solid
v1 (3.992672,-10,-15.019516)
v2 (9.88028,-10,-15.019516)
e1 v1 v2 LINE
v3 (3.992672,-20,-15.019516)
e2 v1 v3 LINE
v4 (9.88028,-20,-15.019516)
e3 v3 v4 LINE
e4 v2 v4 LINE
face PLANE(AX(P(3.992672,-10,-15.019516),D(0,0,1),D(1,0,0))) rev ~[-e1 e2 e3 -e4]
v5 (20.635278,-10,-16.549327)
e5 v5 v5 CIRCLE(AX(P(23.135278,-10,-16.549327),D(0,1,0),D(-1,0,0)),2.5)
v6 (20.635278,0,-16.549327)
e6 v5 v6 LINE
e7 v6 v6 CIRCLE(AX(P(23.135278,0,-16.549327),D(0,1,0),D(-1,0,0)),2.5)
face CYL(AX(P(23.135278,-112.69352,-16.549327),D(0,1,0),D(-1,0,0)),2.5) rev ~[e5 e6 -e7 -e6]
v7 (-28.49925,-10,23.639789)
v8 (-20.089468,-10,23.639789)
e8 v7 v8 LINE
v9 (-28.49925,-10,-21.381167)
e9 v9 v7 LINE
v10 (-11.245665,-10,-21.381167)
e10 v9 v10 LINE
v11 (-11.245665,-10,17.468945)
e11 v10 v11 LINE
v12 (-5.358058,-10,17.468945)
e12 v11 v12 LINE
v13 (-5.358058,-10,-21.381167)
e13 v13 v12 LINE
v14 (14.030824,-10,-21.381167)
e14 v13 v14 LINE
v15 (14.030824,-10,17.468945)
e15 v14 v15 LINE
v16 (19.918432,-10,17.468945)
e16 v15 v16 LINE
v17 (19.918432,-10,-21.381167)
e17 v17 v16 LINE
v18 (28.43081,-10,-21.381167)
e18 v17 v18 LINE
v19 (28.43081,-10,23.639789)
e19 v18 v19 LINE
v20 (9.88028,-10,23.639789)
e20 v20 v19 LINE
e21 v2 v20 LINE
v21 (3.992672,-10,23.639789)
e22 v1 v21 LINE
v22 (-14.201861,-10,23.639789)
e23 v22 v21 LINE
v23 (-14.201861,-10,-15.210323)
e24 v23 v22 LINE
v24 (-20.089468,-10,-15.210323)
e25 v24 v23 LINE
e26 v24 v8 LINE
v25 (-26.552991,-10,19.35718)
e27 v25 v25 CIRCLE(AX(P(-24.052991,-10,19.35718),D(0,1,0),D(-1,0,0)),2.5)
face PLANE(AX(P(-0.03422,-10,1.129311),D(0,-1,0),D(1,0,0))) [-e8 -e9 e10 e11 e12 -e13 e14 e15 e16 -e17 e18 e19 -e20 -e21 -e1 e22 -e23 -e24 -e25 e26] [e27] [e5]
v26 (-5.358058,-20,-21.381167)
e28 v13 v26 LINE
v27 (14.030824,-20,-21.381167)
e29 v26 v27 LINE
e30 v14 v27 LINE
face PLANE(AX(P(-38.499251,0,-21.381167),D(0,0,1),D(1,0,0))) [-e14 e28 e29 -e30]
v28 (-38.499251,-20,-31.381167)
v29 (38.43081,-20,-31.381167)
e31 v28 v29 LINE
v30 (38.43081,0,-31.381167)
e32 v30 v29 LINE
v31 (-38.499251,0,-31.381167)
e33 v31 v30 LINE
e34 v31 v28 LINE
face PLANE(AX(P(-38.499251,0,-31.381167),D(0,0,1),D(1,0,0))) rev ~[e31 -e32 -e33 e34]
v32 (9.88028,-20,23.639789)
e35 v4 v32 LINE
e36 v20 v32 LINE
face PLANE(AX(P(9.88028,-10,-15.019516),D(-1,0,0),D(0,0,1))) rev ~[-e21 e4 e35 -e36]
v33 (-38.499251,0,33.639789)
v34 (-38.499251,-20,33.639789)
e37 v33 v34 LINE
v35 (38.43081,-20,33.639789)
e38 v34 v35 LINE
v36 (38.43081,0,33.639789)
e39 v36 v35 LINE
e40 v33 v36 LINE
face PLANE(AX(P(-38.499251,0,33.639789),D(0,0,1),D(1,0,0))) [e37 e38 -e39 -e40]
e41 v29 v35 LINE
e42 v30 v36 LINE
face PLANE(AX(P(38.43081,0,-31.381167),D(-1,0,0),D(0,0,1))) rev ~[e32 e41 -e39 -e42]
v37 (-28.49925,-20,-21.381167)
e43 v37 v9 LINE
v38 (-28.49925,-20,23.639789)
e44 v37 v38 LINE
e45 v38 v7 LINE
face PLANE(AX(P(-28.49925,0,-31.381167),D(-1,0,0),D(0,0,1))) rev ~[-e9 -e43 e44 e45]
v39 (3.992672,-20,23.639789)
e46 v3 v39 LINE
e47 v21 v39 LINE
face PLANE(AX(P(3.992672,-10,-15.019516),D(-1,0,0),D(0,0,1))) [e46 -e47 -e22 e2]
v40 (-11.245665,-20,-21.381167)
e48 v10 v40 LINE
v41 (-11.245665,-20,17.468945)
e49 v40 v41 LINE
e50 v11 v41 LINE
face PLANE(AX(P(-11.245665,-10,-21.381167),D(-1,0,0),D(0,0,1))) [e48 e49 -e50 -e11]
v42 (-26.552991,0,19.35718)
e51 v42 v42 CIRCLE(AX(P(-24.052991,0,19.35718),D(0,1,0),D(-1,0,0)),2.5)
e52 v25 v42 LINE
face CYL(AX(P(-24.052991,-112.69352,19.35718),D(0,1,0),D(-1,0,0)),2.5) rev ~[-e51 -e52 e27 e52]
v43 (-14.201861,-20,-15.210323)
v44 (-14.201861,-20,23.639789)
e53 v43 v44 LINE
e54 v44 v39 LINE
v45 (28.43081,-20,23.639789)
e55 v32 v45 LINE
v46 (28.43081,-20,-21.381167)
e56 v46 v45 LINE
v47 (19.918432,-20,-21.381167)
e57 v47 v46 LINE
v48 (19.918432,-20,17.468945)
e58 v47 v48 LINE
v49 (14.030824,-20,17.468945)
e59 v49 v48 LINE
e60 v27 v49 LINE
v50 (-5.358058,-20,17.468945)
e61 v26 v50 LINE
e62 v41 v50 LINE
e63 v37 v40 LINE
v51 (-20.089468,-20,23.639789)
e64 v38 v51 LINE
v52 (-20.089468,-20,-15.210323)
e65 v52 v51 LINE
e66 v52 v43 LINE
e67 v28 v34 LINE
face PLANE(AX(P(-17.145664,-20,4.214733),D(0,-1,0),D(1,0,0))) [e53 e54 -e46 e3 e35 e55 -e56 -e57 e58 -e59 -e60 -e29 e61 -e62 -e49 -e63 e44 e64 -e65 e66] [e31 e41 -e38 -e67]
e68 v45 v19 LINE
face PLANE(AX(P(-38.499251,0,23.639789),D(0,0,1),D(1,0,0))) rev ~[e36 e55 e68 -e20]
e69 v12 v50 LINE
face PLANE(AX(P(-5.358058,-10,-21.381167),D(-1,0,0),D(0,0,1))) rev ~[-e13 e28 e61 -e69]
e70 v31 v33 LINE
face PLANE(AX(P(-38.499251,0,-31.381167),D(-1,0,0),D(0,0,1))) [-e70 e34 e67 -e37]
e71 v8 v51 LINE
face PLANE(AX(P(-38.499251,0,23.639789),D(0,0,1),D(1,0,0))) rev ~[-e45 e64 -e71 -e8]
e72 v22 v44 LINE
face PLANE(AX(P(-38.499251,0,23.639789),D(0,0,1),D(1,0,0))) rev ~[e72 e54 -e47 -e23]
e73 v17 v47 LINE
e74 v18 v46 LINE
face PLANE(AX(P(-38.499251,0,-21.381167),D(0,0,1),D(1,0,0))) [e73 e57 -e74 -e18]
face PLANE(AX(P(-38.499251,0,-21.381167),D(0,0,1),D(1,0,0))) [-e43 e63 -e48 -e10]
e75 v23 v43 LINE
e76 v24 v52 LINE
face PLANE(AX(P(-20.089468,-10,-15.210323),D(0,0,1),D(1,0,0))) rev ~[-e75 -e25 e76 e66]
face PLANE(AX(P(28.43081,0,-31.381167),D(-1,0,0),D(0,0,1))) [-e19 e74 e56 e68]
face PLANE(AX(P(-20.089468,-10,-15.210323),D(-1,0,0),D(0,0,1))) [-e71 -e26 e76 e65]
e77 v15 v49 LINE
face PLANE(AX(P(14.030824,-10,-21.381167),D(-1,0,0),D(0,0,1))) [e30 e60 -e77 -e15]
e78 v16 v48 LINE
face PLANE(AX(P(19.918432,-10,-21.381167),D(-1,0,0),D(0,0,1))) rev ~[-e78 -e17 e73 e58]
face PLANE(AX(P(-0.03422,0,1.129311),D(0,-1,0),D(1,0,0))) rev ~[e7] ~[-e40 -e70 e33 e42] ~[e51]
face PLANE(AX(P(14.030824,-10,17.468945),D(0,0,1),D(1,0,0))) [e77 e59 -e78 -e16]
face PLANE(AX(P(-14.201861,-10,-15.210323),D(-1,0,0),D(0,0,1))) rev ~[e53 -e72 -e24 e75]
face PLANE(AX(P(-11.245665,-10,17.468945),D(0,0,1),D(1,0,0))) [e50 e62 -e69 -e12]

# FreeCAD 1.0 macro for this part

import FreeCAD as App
import Part
import Sketcher


def faces_at(feature, points):
    """Names of the faces that lie closest to the given points."""
    faces = feature.Shape.Faces
    near = lambda p: min(range(len(faces)), key=lambda i: faces[i].distToShape(Part.Vertex(*p))[0])
    return sorted({f"Face{near(p) + 1}" for p in points})

doc = App.newDocument("Part")
body = doc.addObject("PartDesign::Body", "Body")

# Sketch on XZ plane
sketch1 = body.newObject("Sketcher::SketchObject", "Sketch")
sketch1.AttachmentSupport = (doc.getObject("XZ_Plane"), [""])
sketch1.MapMode = "FlatFace"
sketch1.addGeometry([
    Part.LineSegment(App.Vector(-38, 34, 0), App.Vector(-38, -31, 0)),
    Part.LineSegment(App.Vector(-38, -31, 0), App.Vector(38, -31, 0)),
    Part.LineSegment(App.Vector(38, -31, 0), App.Vector(38, 34, 0)),
    Part.LineSegment(App.Vector(38, 34, 0), App.Vector(-38, 34, 0)),
], False)
sketch1.addConstraint([
    Sketcher.Constraint("Coincident", 0, 2, 1, 1),
    Sketcher.Constraint("Coincident", 1, 2, 2, 1),
    Sketcher.Constraint("Coincident", 2, 2, 3, 1),
    Sketcher.Constraint("Coincident", 3, 2, 0, 1),
    Sketcher.Constraint("Vertical", 0),
    Sketcher.Constraint("Horizontal", 1),
    Sketcher.Constraint("Vertical", 2),
    Sketcher.Constraint("Horizontal", 3),
    Sketcher.Constraint("DistanceX", 1, 1, 1, 2, 76.930061),
    Sketcher.Constraint("DistanceY", 0, 2, 0, 1, 65.020956),
    Sketcher.Constraint("DistanceX", 0, 2, -1, 1, 38.499251),
    Sketcher.Constraint("DistanceY", -1, 1, 2, 2, 33.639789),
])
pad1 = body.newObject("PartDesign::Pad", "Pad")
pad1.Profile = sketch1
pad1.Length = 20
doc.recompute()

thickness = body.newObject("PartDesign::Thickness", "Thickness")
thickness.Base = (pad1, faces_at(pad1, [(-0.034, -20, 1.129)]))
thickness.Value = 10
thickness.Reversed = True
thickness.Join = "Arc"

# Sketch on XZ plane
sketch2 = body.newObject("Sketcher::SketchObject", "Sketch001")
sketch2.AttachmentSupport = (doc.getObject("XZ_Plane"), [""])
sketch2.MapMode = "FlatFace"
sketch2.AttachmentOffset = App.Placement(App.Vector(0, 0, 10), App.Rotation())
sketch2.addGeometry([
    Part.Circle(App.Vector(-24.1, 19.4, 0), App.Vector(0, 0, 1), 2.5),
    Part.Circle(App.Vector(23.1, -16.5, 0), App.Vector(0, 0, 1), 2.5),
], False)
sketch2.addConstraint([
    Sketcher.Constraint("Equal", 0, 1),
    Sketcher.Constraint("Diameter", 0, 5.0),
    Sketcher.Constraint("DistanceX", 0, 3, -1, 1, 24.052991),
    Sketcher.Constraint("DistanceY", -1, 1, 0, 3, 19.35718),
    Sketcher.Constraint("DistanceX", 0, 3, 1, 3, 47.188269),
    Sketcher.Constraint("DistanceY", 1, 3, -1, 1, 16.549327),
])
doc.recompute()
hole = body.newObject("PartDesign::Hole", "Hole")
hole.Profile = sketch2
hole.ThreadType = "None"
hole.Diameter = 5
hole.DepthType = "ThroughAll"

# Sketch on XZ plane
sketch3 = body.newObject("Sketcher::SketchObject", "Sketch002")
sketch3.AttachmentSupport = (doc.getObject("XZ_Plane"), [""])
sketch3.MapMode = "FlatFace"
sketch3.AttachmentOffset = App.Placement(App.Vector(0, 0, 10), App.Rotation())
sketch3.addGeometry([
    Part.LineSegment(App.Vector(-20, 24, 0), App.Vector(-20, -15, 0)),  # 0
    Part.LineSegment(App.Vector(-20, -15, 0), App.Vector(-14, -15, 0)),  # 1
    Part.LineSegment(App.Vector(-14, -15, 0), App.Vector(-14, 24, 0)),  # 2
    Part.LineSegment(App.Vector(-14, 24, 0), App.Vector(-20, 24, 0)),  # 3
    Part.LineSegment(App.Vector(-11, 17, 0), App.Vector(-11, -21, 0)),  # 4
    Part.LineSegment(App.Vector(-11, -21, 0), App.Vector(-5, -21, 0)),  # 5
    Part.LineSegment(App.Vector(-5, -21, 0), App.Vector(-5, 17, 0)),  # 6
    Part.LineSegment(App.Vector(-5, 17, 0), App.Vector(-11, 17, 0)),  # 7
    Part.LineSegment(App.Vector(14, 17, 0), App.Vector(14, -21, 0)),  # 8
    Part.LineSegment(App.Vector(14, -21, 0), App.Vector(20, -21, 0)),  # 9
    Part.LineSegment(App.Vector(20, -21, 0), App.Vector(20, 17, 0)),  # 10
    Part.LineSegment(App.Vector(20, 17, 0), App.Vector(14, 17, 0)),  # 11
    Part.LineSegment(App.Vector(4, 24, 0), App.Vector(4, -15, 0)),  # 12
    Part.LineSegment(App.Vector(4, -15, 0), App.Vector(10, -15, 0)),  # 13
    Part.LineSegment(App.Vector(10, -15, 0), App.Vector(10, 24, 0)),  # 14
    Part.LineSegment(App.Vector(10, 24, 0), App.Vector(4, 24, 0)),  # 15
], False)
sketch3.addConstraint([
    Sketcher.Constraint("Coincident", 0, 2, 1, 1),
    Sketcher.Constraint("Coincident", 1, 2, 2, 1),
    Sketcher.Constraint("Coincident", 2, 2, 3, 1),
    Sketcher.Constraint("Coincident", 3, 2, 0, 1),
    Sketcher.Constraint("Coincident", 4, 2, 5, 1),
    Sketcher.Constraint("Coincident", 5, 2, 6, 1),
    Sketcher.Constraint("Coincident", 6, 2, 7, 1),
    Sketcher.Constraint("Coincident", 7, 2, 4, 1),
    Sketcher.Constraint("Coincident", 8, 2, 9, 1),
    Sketcher.Constraint("Coincident", 9, 2, 10, 1),
    Sketcher.Constraint("Coincident", 10, 2, 11, 1),
    Sketcher.Constraint("Coincident", 11, 2, 8, 1),
    Sketcher.Constraint("Coincident", 12, 2, 13, 1),
    Sketcher.Constraint("Coincident", 13, 2, 14, 1),
    Sketcher.Constraint("Coincident", 14, 2, 15, 1),
    Sketcher.Constraint("Coincident", 15, 2, 12, 1),
    Sketcher.Constraint("Vertical", 0),
    Sketcher.Constraint("Horizontal", 1),
    Sketcher.Constraint("Vertical", 2),
    Sketcher.Constraint("Horizontal", 3),
    Sketcher.Constraint("Vertical", 4),
    Sketcher.Constraint("Horizontal", 5),
    Sketcher.Constraint("Vertical", 6),
    Sketcher.Constraint("Horizontal", 7),
    Sketcher.Constraint("Vertical", 8),
    Sketcher.Constraint("Horizontal", 9),
    Sketcher.Constraint("Vertical", 10),
    Sketcher.Constraint("Horizontal", 11),
    Sketcher.Constraint("Vertical", 12),
    Sketcher.Constraint("Horizontal", 13),
    Sketcher.Constraint("Vertical", 14),
    Sketcher.Constraint("Horizontal", 15),
    Sketcher.Constraint("Horizontal", 5, 2, 8, 2),
    Sketcher.Constraint("Horizontal", 7, 2, 10, 2),
    Sketcher.Constraint("Equal", 3, 5),
    Sketcher.Constraint("Equal", 7, 9),
    Sketcher.Constraint("Equal", 11, 13),
    Sketcher.Constraint("Equal", 2, 4),
    Sketcher.Constraint("Equal", 10, 12),
    Sketcher.Constraint("DistanceX", 0, 2, 9, 2, 40.0079),
    Sketcher.Constraint("DistanceX", 1, 1, 1, 2, 5.887607),
    Sketcher.Constraint("DistanceY", 0, 2, 0, 1, 38.850113),
    Sketcher.Constraint("DistanceX", 1, 2, -1, 1, 14.201861),
    Sketcher.Constraint("DistanceY", -1, 1, 2, 2, 23.639789),
    Sketcher.Constraint("DistanceX", -1, 1, 13, 2, 9.88028),
    Sketcher.Constraint("DistanceX", 0, 2, 5, 2, 14.73141),
    Sketcher.Constraint("DistanceY", 1, 2, 6, 2, 32.679268),
    Sketcher.Constraint("DistanceY", 5, 2, 12, 2, 6.361652),
])
pad2 = body.newObject("PartDesign::Pad", "Pad001")
pad2.Profile = sketch3
pad2.Length = 10

doc.recompute()
